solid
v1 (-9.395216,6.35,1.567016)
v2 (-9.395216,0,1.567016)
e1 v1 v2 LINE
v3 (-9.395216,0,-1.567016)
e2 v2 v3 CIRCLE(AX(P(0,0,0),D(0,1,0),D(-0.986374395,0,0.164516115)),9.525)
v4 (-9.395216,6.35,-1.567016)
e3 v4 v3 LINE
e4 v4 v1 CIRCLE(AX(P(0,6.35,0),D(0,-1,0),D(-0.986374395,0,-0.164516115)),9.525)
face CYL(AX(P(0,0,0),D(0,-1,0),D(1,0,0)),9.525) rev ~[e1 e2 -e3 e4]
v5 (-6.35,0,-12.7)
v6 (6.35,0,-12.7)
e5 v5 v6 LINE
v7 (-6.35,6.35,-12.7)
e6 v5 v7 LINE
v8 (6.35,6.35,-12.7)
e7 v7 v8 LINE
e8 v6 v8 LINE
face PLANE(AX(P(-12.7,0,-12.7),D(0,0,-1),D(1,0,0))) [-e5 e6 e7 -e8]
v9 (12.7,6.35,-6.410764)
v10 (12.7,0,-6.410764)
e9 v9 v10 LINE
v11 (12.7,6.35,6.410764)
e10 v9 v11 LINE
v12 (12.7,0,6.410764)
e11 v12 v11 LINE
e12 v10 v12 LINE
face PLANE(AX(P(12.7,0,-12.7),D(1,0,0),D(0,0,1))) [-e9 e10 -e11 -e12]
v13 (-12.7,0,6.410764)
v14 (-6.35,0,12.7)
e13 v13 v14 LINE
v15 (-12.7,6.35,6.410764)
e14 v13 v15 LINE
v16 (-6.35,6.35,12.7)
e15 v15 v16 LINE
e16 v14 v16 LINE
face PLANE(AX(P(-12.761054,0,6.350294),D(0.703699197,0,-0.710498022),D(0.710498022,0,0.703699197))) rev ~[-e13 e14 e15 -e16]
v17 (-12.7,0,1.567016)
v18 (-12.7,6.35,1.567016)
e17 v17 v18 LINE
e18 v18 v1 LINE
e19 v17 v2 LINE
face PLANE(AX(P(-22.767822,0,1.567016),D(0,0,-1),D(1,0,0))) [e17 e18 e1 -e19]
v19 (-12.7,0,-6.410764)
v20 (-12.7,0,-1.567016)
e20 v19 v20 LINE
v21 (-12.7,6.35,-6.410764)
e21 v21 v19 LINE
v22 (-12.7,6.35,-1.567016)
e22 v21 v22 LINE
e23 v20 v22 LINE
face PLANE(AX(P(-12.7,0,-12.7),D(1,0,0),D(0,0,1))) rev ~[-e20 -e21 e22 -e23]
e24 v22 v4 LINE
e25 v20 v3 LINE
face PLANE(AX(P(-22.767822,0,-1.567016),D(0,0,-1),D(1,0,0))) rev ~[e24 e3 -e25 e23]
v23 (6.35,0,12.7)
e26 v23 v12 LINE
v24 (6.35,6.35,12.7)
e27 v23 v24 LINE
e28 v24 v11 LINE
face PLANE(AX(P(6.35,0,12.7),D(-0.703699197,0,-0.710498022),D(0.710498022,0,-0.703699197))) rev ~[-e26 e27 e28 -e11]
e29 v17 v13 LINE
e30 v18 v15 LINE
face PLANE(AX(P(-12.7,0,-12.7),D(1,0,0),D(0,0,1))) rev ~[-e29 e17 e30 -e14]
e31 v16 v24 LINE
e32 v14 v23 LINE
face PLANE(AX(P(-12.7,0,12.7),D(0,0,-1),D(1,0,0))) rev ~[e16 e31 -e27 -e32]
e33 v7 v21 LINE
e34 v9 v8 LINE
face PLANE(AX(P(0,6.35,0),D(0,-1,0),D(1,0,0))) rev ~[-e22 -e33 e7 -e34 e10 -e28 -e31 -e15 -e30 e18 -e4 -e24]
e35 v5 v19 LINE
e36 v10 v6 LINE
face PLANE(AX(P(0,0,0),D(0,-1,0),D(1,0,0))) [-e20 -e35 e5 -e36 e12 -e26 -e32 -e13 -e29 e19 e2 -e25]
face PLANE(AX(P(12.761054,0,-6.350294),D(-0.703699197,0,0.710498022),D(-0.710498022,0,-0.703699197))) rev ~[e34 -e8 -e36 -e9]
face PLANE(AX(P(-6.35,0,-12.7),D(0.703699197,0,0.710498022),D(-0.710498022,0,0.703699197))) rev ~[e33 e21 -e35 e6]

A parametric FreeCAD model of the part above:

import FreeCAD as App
import Part
import Sketcher
from FreeCAD import Vector
Q = App.Units.Quantity

doc = App.newDocument("Part")
body = doc.addObject("PartDesign::Body", "Body")

# Sketch on XZ plane
sketch1 = doc.addObject("Sketcher::SketchObject", "Sketch")
body.addObject(sketch1)
sketch1.AttachmentSupport = (doc.XZ_Plane, [""])
sketch1.MapMode = "FlatFace"
sketch1.addGeometry(Part.LineSegment(Vector(-12.7, 12.7, 0), Vector(-12.7, -12.7, 0)), False)
sketch1.addGeometry(Part.LineSegment(Vector(-12.7, -12.7, 0), Vector(12.7, -12.7, 0)), False)
sketch1.addGeometry(Part.LineSegment(Vector(12.7, -12.7, 0), Vector(12.7, 12.7, 0)), False)
sketch1.addGeometry(Part.LineSegment(Vector(12.7, 12.7, 0), Vector(-12.7, 12.7, 0)), False)
sketch1.addConstraint(Sketcher.Constraint("Coincident", 0, 2, 1, 1))
sketch1.addConstraint(Sketcher.Constraint("Coincident", 1, 2, 2, 1))
sketch1.addConstraint(Sketcher.Constraint("Coincident", 2, 2, 3, 1))
sketch1.addConstraint(Sketcher.Constraint("Coincident", 3, 2, 0, 1))
sketch1.addConstraint(Sketcher.Constraint("Vertical", 0))
sketch1.addConstraint(Sketcher.Constraint("Horizontal", 1))
sketch1.addConstraint(Sketcher.Constraint("Vertical", 2))
sketch1.addConstraint(Sketcher.Constraint("Horizontal", 3))
sketch1.addConstraint(Sketcher.Constraint("Symmetric", 0, 2, 2, 2, -1, 1))
sketch1.addConstraint(Sketcher.Constraint("Equal", 3, 0))
sketch1.addConstraint(Sketcher.Constraint("DistanceX", 1, 1, 1, 2, Q("1 in")))
pad1 = doc.addObject("PartDesign::Pad", "Pad")
body.addObject(pad1)
pad1.Profile = sketch1
pad1.Length = Q("0.25 in")
pad1.Reversed = True

# Sketch on XZ plane
sketch2 = doc.addObject("Sketcher::SketchObject", "Sketch001")
body.addObject(sketch2)
sketch2.AttachmentSupport = (doc.XZ_Plane, [""])
sketch2.MapMode = "FlatFace"
sketch2.addGeometry(Part.Circle(Vector(0, 0, 0), Vector(0, 0, 1), 9.525), False)
sketch2.addConstraint(Sketcher.Constraint("Coincident", 0, 3, -1, 1))
sketch2.addConstraint(Sketcher.Constraint("Diameter", 0, Q("0.75 in")))
pocket1 = doc.addObject("PartDesign::Pocket", "Pocket")
body.addObject(pocket1)
pocket1.Profile = sketch2
pocket1.Length = Q("0.25 in")

# Sketch on XZ plane
sketch3 = doc.addObject("Sketcher::SketchObject", "Sketch002")
body.addObject(sketch3)
sketch3.AttachmentSupport = (doc.XZ_Plane, [""])
sketch3.MapMode = "FlatFace"
sketch3.addGeometry(Part.LineSegment(Vector(12.761054, 6.350294, 0), Vector(12.7, 12.7, 0)), False)
sketch3.addGeometry(Part.LineSegment(Vector(12.7, 12.7, 0), Vector(6.35, 12.7, 0)), False)
sketch3.addGeometry(Part.LineSegment(Vector(6.35, 12.7, 0), Vector(12.761054, 6.350294, 0)), False)
sketch3.addGeometry(Part.LineSegment(Vector(-6.35, 12.7, 0), Vector(-12.7, 12.7, 0)), False)
sketch3.addGeometry(Part.LineSegment(Vector(-12.7, 12.7, 0), Vector(-12.761054, 6.350294, 0)), False)
sketch3.addGeometry(Part.LineSegment(Vector(-12.761054, 6.350294, 0), Vector(-6.35, 12.7, 0)), False)
sketch3.addGeometry(Part.LineSegment(Vector(-12.761054, -6.350294, 0), Vector(-12.7, -12.7, 0)), False)
sketch3.addGeometry(Part.LineSegment(Vector(-12.7, -12.7, 0), Vector(-6.35, -12.7, 0)), False)
sketch3.addGeometry(Part.LineSegment(Vector(-6.35, -12.7, 0), Vector(-12.761054, -6.350294, 0)), False)
sketch3.addGeometry(Part.LineSegment(Vector(6.35, -12.7, 0), Vector(12.7, -12.7, 0)), False)
sketch3.addGeometry(Part.LineSegment(Vector(12.7, -12.7, 0), Vector(12.761054, -6.350294, 0)), False)
sketch3.addGeometry(Part.LineSegment(Vector(12.761054, -6.350294, 0), Vector(6.35, -12.7, 0)), False)
sketch3.addConstraint(Sketcher.Constraint("Coincident", 0, 2, 1, 1))
sketch3.addConstraint(Sketcher.Constraint("Coincident", 1, 2, 2, 1))
sketch3.addConstraint(Sketcher.Constraint("Coincident", 2, 2, 0, 1))
sketch3.addConstraint(Sketcher.Constraint("Coincident", 3, 2, 4, 1))
sketch3.addConstraint(Sketcher.Constraint("Coincident", 4, 2, 5, 1))
sketch3.addConstraint(Sketcher.Constraint("Coincident", 5, 2, 3, 1))
sketch3.addConstraint(Sketcher.Constraint("Coincident", 6, 2, 7, 1))
sketch3.addConstraint(Sketcher.Constraint("Coincident", 7, 2, 8, 1))
sketch3.addConstraint(Sketcher.Constraint("Coincident", 8, 2, 6, 1))
sketch3.addConstraint(Sketcher.Constraint("Coincident", 9, 2, 10, 1))
sketch3.addConstraint(Sketcher.Constraint("Coincident", 10, 2, 11, 1))
sketch3.addConstraint(Sketcher.Constraint("Coincident", 11, 2, 9, 1))
sketch3.addConstraint(Sketcher.Constraint("Horizontal", 1))
sketch3.addConstraint(Sketcher.Constraint("Horizontal", 3))
sketch3.addConstraint(Sketcher.Constraint("Horizontal", 7))
sketch3.addConstraint(Sketcher.Constraint("Horizontal", 9))
sketch3.addConstraint(Sketcher.Constraint("Symmetric", 0, 2, 6, 2, -1, 1))
sketch3.addConstraint(Sketcher.Constraint("Symmetric", 2, 2, 8, 2, -1, 1))
sketch3.addConstraint(Sketcher.Constraint("Symmetric", 3, 2, 9, 2, -1, 1))
sketch3.addConstraint(Sketcher.Constraint("Symmetric", 4, 2, 10, 2, -1, 1))
sketch3.addConstraint(Sketcher.Constraint("Symmetric", 0, 2, 3, 2, -2))
sketch3.addConstraint(Sketcher.Constraint("Symmetric", 2, 2, 4, 2, -2))
sketch3.addConstraint(Sketcher.Constraint("Parallel", 2, 8))
sketch3.addConstraint(Sketcher.Constraint("Parallel", 5, 11))
sketch3.addConstraint(Sketcher.Constraint("Vertical", 5, 2, 7, 2))
sketch3.addConstraint(Sketcher.Constraint("DistanceX", 3, 2, 0, 2, Q("1 in")))
sketch3.addConstraint(Sketcher.Constraint("DistanceY", 6, 2, 3, 2, Q("1 in")))
sketch3.addConstraint(Sketcher.Constraint("DistanceX", 1, 2, 1, 1, Q("0.25 in")))
sketch3.addConstraint(Sketcher.Constraint("Distance", 0, Q("0.25 in")))
sketch3.addConstraint(Sketcher.Constraint("Distance", 2, Q("9.023324 mm")))
pocket2 = doc.addObject("PartDesign::Pocket", "Pocket001")
body.addObject(pocket2)
pocket2.Profile = sketch3
pocket2.Length = Q("0.25 in")

# Sketch on XZ plane
sketch4 = doc.addObject("Sketcher::SketchObject", "Sketch003")
body.addObject(sketch4)
sketch4.AttachmentSupport = (doc.XZ_Plane, [""])
sketch4.MapMode = "FlatFace"
sketch4.addGeometry(Part.LineSegment(Vector(-22.767822, 1.567016, 0), Vector(-22.767822, -1.567016, 0)), False)
sketch4.addGeometry(Part.LineSegment(Vector(-22.767822, -1.567016, 0), Vector(-6.913307, -1.567016, 0)), False)
sketch4.addGeometry(Part.LineSegment(Vector(-6.913307, -1.567016, 0), Vector(-6.913307, 1.567016, 0)), False)
sketch4.addGeometry(Part.LineSegment(Vector(-6.913307, 1.567016, 0), Vector(-22.767822, 1.567016, 0)), False)
sketch4.addConstraint(Sketcher.Constraint("Coincident", 0, 2, 1, 1))
sketch4.addConstraint(Sketcher.Constraint("Coincident", 1, 2, 2, 1))
sketch4.addConstraint(Sketcher.Constraint("Coincident", 2, 2, 3, 1))
sketch4.addConstraint(Sketcher.Constraint("Coincident", 3, 2, 0, 1))
sketch4.addConstraint(Sketcher.Constraint("Vertical", 0))
sketch4.addConstraint(Sketcher.Constraint("Horizontal", 1))
sketch4.addConstraint(Sketcher.Constraint("Vertical", 2))
sketch4.addConstraint(Sketcher.Constraint("Horizontal", 3))
sketch4.addConstraint(Sketcher.Constraint("DistanceY", 0, 2, 0, 1, Q("3.134032 mm")))
sketch4.addConstraint(Sketcher.Constraint("DistanceX", 1, 1, 1, 2, Q("15.854515 mm")))
sketch4.addConstraint(Sketcher.Constraint("DistanceX", 0, 2, -1, 1, Q("22.767822 mm")))
sketch4.addConstraint(Sketcher.Constraint("DistanceY", 0, 2, -1, 1, Q("1.567016 mm")))
pocket3 = doc.addObject("PartDesign::Pocket", "Pocket002")
body.addObject(pocket3)
pocket3.Profile = sketch4
pocket3.Length = Q("0.25 in")

doc.recompute()
